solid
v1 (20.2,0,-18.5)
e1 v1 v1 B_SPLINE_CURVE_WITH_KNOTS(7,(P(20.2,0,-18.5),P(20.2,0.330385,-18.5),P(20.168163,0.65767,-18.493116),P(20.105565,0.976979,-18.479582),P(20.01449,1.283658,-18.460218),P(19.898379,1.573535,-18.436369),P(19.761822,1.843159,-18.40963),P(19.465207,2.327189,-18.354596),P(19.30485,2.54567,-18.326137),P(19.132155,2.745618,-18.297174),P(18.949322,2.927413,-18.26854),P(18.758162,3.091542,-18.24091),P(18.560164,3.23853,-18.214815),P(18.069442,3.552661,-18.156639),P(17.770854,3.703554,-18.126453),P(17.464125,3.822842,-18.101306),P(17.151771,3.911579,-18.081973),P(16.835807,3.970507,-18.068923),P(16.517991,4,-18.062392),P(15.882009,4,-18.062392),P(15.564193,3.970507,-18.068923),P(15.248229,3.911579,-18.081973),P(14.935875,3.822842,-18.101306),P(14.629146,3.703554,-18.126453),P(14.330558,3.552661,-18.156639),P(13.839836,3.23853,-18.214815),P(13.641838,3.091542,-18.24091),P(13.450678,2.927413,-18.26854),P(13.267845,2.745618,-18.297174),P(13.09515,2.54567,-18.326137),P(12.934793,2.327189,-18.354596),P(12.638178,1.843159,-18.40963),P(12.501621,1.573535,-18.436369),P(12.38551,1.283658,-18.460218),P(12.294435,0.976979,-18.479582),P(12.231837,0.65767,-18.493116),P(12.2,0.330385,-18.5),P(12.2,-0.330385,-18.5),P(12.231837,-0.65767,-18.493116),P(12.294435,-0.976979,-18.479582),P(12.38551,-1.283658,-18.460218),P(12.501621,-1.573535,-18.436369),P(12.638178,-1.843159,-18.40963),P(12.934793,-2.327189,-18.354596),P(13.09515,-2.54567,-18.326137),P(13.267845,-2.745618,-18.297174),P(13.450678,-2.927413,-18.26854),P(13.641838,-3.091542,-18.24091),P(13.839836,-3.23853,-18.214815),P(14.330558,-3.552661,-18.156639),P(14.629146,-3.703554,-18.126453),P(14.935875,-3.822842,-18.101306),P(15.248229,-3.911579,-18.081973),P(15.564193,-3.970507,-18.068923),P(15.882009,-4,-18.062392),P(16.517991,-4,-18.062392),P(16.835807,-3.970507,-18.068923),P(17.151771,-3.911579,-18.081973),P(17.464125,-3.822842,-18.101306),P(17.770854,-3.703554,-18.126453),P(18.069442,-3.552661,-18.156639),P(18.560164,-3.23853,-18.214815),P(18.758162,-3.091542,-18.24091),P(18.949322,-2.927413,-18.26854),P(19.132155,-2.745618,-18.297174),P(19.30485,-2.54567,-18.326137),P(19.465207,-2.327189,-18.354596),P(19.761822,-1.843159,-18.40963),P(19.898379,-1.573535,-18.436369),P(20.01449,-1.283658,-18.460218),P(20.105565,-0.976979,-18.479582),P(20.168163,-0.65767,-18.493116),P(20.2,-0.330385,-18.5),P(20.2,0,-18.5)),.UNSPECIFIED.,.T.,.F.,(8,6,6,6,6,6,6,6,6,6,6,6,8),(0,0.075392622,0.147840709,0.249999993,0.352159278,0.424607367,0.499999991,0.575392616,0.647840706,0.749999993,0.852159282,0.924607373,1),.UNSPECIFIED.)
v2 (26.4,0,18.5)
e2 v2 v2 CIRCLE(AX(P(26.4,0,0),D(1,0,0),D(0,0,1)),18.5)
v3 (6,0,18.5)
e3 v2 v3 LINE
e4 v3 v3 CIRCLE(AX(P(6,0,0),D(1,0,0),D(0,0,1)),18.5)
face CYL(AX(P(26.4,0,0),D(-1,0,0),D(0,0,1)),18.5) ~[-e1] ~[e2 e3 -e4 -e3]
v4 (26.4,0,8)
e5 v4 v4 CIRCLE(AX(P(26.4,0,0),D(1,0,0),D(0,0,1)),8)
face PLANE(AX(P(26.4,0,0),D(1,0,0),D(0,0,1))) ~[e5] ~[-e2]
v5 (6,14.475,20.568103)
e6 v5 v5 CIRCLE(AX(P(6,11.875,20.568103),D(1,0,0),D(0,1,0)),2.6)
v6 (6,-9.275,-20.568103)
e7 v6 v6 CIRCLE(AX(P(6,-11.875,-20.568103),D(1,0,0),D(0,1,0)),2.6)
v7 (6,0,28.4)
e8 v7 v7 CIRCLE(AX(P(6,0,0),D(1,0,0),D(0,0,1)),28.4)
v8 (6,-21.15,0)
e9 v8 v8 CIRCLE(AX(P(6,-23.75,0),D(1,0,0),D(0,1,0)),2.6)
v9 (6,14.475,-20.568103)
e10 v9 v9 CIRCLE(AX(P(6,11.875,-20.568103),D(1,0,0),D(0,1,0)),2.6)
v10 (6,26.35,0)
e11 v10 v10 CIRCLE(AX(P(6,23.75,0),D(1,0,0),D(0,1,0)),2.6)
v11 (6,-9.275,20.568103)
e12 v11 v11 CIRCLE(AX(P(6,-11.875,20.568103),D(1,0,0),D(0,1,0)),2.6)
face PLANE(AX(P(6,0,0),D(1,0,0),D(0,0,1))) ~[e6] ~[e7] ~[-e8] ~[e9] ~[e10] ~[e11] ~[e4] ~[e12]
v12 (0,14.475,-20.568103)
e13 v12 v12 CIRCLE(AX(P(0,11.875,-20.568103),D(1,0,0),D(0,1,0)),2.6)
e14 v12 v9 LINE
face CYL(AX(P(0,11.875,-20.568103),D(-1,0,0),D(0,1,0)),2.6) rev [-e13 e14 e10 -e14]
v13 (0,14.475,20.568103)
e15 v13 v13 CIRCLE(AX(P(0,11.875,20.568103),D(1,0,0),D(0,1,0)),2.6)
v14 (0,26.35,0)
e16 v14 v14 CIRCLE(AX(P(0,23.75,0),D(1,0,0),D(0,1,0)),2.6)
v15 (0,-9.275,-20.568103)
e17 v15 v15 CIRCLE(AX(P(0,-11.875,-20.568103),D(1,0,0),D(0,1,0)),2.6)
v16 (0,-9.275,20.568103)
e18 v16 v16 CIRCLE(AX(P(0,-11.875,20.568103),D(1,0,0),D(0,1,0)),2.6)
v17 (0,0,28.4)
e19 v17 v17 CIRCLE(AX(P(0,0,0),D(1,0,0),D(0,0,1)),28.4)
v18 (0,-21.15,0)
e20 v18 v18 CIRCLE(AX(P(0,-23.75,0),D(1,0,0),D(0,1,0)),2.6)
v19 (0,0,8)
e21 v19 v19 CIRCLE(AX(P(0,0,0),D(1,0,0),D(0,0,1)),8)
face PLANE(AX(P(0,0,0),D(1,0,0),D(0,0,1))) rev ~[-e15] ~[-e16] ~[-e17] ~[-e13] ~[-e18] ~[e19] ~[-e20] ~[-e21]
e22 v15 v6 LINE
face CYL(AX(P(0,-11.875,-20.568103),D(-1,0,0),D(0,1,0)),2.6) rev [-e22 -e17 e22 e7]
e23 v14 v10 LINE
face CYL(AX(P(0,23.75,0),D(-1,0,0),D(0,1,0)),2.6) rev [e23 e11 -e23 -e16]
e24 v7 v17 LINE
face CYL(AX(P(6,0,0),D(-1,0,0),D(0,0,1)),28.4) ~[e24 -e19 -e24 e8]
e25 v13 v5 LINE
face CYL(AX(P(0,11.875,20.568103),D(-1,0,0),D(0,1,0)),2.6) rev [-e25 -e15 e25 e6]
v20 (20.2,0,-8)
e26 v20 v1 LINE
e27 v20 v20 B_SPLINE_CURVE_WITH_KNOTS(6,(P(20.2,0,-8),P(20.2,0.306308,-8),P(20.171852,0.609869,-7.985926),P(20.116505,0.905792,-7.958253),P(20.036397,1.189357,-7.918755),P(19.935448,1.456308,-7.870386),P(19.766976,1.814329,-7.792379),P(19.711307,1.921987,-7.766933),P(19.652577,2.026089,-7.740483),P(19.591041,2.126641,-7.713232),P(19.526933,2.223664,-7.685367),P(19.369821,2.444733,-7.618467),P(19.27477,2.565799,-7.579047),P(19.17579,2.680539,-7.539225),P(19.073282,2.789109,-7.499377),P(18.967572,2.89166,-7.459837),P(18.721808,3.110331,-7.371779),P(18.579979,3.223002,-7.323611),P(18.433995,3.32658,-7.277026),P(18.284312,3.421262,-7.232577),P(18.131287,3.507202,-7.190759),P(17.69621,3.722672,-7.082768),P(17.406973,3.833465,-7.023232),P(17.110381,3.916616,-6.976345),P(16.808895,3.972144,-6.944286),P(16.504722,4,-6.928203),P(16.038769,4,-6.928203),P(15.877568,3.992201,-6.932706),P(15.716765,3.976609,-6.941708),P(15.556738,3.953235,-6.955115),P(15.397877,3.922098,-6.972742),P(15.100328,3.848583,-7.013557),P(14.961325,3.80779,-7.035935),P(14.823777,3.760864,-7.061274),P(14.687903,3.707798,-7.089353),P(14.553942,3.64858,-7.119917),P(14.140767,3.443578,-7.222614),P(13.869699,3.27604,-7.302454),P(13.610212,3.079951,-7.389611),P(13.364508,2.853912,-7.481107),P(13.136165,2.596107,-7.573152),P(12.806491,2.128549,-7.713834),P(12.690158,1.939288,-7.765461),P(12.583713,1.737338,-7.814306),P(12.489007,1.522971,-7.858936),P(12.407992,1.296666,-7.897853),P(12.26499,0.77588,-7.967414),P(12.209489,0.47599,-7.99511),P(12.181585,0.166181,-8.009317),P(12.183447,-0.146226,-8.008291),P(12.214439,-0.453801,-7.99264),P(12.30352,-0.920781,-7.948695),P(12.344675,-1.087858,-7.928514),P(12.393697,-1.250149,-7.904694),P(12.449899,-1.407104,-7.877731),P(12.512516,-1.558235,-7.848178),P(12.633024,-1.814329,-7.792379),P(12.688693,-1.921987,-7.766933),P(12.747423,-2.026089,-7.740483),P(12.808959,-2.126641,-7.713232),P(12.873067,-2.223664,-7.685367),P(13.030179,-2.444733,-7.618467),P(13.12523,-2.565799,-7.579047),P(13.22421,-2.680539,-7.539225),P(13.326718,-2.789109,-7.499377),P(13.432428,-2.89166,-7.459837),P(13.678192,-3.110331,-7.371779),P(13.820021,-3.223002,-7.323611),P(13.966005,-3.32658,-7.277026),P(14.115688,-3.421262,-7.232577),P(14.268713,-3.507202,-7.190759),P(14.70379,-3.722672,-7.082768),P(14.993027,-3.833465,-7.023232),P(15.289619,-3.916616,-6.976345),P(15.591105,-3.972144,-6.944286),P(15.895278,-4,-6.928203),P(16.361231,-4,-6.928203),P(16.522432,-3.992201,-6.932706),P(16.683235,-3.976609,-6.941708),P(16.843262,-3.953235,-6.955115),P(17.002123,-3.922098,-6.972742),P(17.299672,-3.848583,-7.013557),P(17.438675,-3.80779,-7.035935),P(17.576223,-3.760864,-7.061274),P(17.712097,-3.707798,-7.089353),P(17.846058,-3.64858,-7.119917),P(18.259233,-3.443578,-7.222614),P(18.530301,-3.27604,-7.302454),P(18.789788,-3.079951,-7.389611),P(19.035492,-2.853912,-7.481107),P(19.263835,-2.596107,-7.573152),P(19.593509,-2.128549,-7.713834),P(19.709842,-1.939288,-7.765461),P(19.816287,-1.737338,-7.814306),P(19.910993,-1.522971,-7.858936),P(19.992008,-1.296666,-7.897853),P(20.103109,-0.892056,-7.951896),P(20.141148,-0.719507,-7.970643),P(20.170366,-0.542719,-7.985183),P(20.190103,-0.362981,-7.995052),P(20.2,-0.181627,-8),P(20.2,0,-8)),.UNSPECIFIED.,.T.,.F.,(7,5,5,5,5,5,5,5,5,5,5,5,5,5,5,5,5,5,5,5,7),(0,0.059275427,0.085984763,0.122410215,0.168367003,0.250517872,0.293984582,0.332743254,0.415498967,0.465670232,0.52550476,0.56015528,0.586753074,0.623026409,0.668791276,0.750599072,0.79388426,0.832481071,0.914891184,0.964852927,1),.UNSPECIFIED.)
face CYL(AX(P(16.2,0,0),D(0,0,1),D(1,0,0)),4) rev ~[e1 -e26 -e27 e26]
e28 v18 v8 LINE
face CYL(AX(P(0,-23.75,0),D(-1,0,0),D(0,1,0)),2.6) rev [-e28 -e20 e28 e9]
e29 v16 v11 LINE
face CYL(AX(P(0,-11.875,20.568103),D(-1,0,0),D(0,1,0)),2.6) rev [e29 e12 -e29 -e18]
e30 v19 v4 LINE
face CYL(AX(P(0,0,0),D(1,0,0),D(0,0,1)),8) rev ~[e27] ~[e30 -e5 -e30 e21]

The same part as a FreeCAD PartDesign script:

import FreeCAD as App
import Part
import Sketcher
from FreeCAD import Vector
Q = App.Units.Quantity

doc = App.newDocument("Part")
body = doc.addObject("PartDesign::Body", "Body")

# Sketch on XZ plane
sketch1 = doc.addObject("Sketcher::SketchObject", "Sketch")
body.addObject(sketch1)
sketch1.AttachmentSupport = (doc.XZ_Plane, [""])
sketch1.MapMode = "FlatFace"
sketch1.addGeometry(Part.LineSegment(Vector(0, 28, 0), Vector(0, 8, 0)), False)
sketch1.addGeometry(Part.LineSegment(Vector(0, 8, 0), Vector(26, 8, 0)), False)
sketch1.addGeometry(Part.LineSegment(Vector(26, 8, 0), Vector(26, 18, 0)), False)
sketch1.addGeometry(Part.LineSegment(Vector(26, 18, 0), Vector(6, 18, 0)), False)
sketch1.addGeometry(Part.LineSegment(Vector(6, 18, 0), Vector(6, 28, 0)), False)
sketch1.addGeometry(Part.LineSegment(Vector(6, 28, 0), Vector(0, 28, 0)), False)
sketch1.addConstraint(Sketcher.Constraint("Coincident", 0, 2, 1, 1))
sketch1.addConstraint(Sketcher.Constraint("Coincident", 1, 2, 2, 1))
sketch1.addConstraint(Sketcher.Constraint("Coincident", 2, 2, 3, 1))
sketch1.addConstraint(Sketcher.Constraint("Coincident", 3, 2, 4, 1))
sketch1.addConstraint(Sketcher.Constraint("Coincident", 4, 2, 5, 1))
sketch1.addConstraint(Sketcher.Constraint("Coincident", 5, 2, 0, 1))
sketch1.addConstraint(Sketcher.Constraint("Vertical", 0))
sketch1.addConstraint(Sketcher.Constraint("Horizontal", 1))
sketch1.addConstraint(Sketcher.Constraint("Vertical", 2))
sketch1.addConstraint(Sketcher.Constraint("Horizontal", 3))
sketch1.addConstraint(Sketcher.Constraint("Vertical", 4))
sketch1.addConstraint(Sketcher.Constraint("Horizontal", 5))
sketch1.addConstraint(Sketcher.Constraint("PointOnObject", 0, 2, -2))
sketch1.addConstraint(Sketcher.Constraint("Equal", 3, 0))
sketch1.addConstraint(Sketcher.Constraint("DistanceX", 5, 2, 5, 1, Q("6 mm")))
sketch1.addConstraint(Sketcher.Constraint("DistanceX", 1, 1, 1, 2, Q("26.4 mm")))
sketch1.addConstraint(Sketcher.Constraint("DistanceY", 2, 1, 2, 2, Q("10.5 mm")))
sketch1.addConstraint(Sketcher.Constraint("DistanceY", -1, 1, 0, 2, Q("8 mm")))
revolution = doc.addObject("PartDesign::Revolution", "Revolution")
body.addObject(revolution)
revolution.Profile = sketch1
revolution.ReferenceAxis = (sketch1, ["H_Axis"])
revolution.Angle = 360

# Sketch on YZ plane
sketch2 = doc.addObject("Sketcher::SketchObject", "Sketch001")
body.addObject(sketch2)
sketch2.AttachmentSupport = (doc.YZ_Plane, [""])
sketch2.MapMode = "FlatFace"
sketch2.addGeometry(Part.Circle(Vector(11.9, 20.6, 0), Vector(0, 0, 1), 2.6), False)
sketch2.addGeometry(Part.Circle(Vector(23.8, 0, 0), Vector(0, 0, 1), 2.6), False)
sketch2.addGeometry(Part.Circle(Vector(11.9, -20.6, 0), Vector(0, 0, 1), 2.6), False)
sketch2.addGeometry(Part.Circle(Vector(-11.9, -20.6, 0), Vector(0, 0, 1), 2.6), False)
sketch2.addGeometry(Part.Circle(Vector(-23.8, 0, 0), Vector(0, 0, 1), 2.6), False)
sketch2.addGeometry(Part.Circle(Vector(-11.9, 20.6, 0), Vector(0, 0, 1), 2.6), False)
sketch2.addConstraint(Sketcher.Constraint("Equal", 0, 1))
sketch2.addConstraint(Sketcher.Constraint("Equal", 1, 2))
sketch2.addConstraint(Sketcher.Constraint("Equal", 2, 3))
sketch2.addConstraint(Sketcher.Constraint("Equal", 3, 4))
sketch2.addConstraint(Sketcher.Constraint("Equal", 4, 5))
sketch2.addConstraint(Sketcher.Constraint("Symmetric", 0, 3, 3, 3, -1, 1))
sketch2.addConstraint(Sketcher.Constraint("Symmetric", 1, 3, 4, 3, -1, 1))
sketch2.addConstraint(Sketcher.Constraint("Symmetric", 2, 3, 5, 3, -1, 1))
sketch2.addConstraint(Sketcher.Constraint("Symmetric", 2, 3, 3, 3, -2))
sketch2.addConstraint(Sketcher.Constraint("PointOnObject", 1, 3, -1))
sketch2.addConstraint(Sketcher.Constraint("Diameter", 0, Q("5.2 mm")))
sketch2.addConstraint(Sketcher.Constraint("DistanceX", 4, 3, 1, 3, Q("47.5 mm")))
sketch2.addConstraint(Sketcher.Constraint("DistanceX", 3, 3, 2, 3, Q("23.75 mm")))
sketch2.addConstraint(Sketcher.Constraint("DistanceY", -1, 1, 0, 3, Q("20.568103 mm")))
pocket1 = doc.addObject("PartDesign::Pocket", "Pocket")
body.addObject(pocket1)
pocket1.Profile = sketch2
pocket1.Type = "ThroughAll"
pocket1.Reversed = True

# Sketch on XY plane
sketch3 = doc.addObject("Sketcher::SketchObject", "Sketch002")
body.addObject(sketch3)
sketch3.AttachmentSupport = (doc.XY_Plane, [""])
sketch3.MapMode = "FlatFace"
sketch3.addGeometry(Part.Circle(Vector(16.2, 0, 0), Vector(0, 0, 1), 4), False)
sketch3.addConstraint(Sketcher.Constraint("PointOnObject", 0, 3, -1))
sketch3.addConstraint(Sketcher.Constraint("Diameter", 0, Q("8 mm")))
sketch3.addConstraint(Sketcher.Constraint("DistanceX", -1, 1, 0, 3, Q("16.2 mm")))
pocket2 = doc.addObject("PartDesign::Pocket", "Pocket001")
body.addObject(pocket2)
pocket2.Profile = sketch3
pocket2.Type = "ThroughAll"

doc.recompute()
